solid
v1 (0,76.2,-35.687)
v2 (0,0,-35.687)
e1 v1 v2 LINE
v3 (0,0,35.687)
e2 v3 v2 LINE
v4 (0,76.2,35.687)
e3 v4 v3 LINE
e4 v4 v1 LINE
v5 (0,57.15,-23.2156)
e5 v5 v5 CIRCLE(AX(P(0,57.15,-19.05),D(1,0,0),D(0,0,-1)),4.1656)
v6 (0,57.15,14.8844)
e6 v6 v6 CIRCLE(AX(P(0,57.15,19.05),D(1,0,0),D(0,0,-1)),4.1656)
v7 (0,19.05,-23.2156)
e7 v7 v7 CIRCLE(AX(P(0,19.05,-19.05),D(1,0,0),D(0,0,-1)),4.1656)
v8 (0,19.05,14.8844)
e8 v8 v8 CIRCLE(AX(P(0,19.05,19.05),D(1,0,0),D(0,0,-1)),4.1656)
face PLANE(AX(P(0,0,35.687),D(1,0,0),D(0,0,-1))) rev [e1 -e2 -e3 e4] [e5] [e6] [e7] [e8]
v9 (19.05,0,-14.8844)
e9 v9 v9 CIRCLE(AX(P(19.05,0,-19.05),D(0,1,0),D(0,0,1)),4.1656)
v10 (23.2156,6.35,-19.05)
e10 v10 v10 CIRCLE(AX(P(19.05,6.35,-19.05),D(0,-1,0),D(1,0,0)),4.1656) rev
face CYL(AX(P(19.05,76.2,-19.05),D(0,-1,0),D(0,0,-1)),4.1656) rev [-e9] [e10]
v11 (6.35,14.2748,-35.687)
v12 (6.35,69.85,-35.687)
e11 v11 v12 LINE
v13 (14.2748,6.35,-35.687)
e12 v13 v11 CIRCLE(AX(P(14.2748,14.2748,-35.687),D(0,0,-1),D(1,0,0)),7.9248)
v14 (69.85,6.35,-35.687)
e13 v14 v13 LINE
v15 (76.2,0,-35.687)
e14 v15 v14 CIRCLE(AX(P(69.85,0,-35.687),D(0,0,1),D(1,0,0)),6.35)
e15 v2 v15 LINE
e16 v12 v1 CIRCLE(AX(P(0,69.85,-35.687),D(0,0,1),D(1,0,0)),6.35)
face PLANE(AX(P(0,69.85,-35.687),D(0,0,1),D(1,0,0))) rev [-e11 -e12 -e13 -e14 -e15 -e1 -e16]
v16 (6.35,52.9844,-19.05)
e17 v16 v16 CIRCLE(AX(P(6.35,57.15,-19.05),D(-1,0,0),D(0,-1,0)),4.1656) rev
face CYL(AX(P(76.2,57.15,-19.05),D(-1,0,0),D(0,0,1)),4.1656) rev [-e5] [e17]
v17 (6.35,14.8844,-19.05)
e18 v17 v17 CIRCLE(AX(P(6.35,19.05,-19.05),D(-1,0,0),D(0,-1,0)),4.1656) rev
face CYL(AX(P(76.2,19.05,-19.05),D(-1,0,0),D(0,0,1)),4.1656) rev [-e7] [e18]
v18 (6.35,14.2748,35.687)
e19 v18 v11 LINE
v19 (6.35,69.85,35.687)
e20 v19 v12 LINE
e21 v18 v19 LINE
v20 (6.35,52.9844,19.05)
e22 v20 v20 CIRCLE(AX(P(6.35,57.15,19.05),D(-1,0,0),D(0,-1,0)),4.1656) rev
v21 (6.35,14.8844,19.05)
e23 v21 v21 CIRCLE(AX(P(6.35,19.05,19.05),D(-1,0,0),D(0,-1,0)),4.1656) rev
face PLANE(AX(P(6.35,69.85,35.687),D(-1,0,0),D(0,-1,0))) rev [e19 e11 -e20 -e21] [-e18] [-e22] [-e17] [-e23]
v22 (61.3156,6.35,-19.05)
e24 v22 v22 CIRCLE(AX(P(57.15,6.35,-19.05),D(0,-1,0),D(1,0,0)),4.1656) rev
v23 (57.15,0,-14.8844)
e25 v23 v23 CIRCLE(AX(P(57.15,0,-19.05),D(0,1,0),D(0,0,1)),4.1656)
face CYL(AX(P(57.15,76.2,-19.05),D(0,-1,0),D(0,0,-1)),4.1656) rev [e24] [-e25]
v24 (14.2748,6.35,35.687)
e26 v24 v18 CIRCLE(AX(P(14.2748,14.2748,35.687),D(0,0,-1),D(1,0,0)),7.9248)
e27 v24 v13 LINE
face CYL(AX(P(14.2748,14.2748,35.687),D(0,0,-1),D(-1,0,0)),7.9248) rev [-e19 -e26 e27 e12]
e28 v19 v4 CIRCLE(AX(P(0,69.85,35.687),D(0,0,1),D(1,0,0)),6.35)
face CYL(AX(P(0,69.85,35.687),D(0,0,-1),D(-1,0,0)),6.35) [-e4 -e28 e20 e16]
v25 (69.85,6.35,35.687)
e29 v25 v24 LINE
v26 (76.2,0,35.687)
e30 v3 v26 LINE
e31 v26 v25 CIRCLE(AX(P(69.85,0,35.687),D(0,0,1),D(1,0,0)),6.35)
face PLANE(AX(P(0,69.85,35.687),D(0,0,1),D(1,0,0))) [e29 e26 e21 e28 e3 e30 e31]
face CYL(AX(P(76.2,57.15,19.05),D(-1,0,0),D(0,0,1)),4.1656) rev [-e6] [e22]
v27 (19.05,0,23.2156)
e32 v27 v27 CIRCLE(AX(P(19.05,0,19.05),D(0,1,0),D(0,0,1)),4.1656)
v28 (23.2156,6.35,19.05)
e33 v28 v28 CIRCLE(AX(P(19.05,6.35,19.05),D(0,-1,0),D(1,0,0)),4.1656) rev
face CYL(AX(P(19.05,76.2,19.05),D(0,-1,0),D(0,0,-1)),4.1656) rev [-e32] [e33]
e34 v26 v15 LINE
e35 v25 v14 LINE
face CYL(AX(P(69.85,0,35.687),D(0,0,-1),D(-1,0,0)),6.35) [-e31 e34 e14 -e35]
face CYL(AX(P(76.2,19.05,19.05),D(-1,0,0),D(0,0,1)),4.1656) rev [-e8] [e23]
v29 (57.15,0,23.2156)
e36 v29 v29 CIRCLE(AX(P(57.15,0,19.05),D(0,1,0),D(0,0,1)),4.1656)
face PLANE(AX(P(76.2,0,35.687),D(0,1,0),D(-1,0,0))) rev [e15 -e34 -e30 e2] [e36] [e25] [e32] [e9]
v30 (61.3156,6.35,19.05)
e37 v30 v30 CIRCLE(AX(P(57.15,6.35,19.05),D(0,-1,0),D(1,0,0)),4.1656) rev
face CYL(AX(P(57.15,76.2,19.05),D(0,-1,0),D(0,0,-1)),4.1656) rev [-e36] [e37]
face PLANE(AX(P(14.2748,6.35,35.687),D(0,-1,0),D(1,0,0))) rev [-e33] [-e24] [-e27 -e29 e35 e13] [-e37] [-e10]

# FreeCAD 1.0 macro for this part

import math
import FreeCAD as App
import Part
import Sketcher
from FreeCAD import Vector
Q = App.Units.Quantity

doc = App.newDocument("Part")
body = doc.addObject("PartDesign::Body", "Body")

sketch1 = doc.addObject("Sketcher::SketchObject", "Sketch")
body.addObject(sketch1)
sketch1.AttachmentSupport = (doc.XY_Plane, [""])
sketch1.MapMode = "FlatFace"
sketch1.addGeometry(Part.LineSegment(Vector(0, 76, 0), Vector(0, 0, 0)), False)
sketch1.addGeometry(Part.LineSegment(Vector(0, 0, 0), Vector(76, 0, 0)), False)
sketch1.addGeometry(Part.ArcOfCircle(Part.Circle(Vector(70, 0, 0), Vector(0, 0, 1), 6), math.radians(0), math.radians(90)), False)
sketch1.addGeometry(Part.LineSegment(Vector(70, 6, 0), Vector(14, 6, 0)), False)
sketch1.addGeometry(Part.ArcOfCircle(Part.Circle(Vector(14, 14, 0), Vector(0, 0, 1), 8), math.radians(180), math.radians(270)), False)
sketch1.addGeometry(Part.LineSegment(Vector(6, 14, 0), Vector(6, 70, 0)), False)
sketch1.addGeometry(Part.ArcOfCircle(Part.Circle(Vector(0, 70, 0), Vector(0, 0, 1), 6), math.radians(0), math.radians(90)), False)
sketch1.addConstraint(Sketcher.Constraint("Coincident", 0, 2, 1, 1))
sketch1.addConstraint(Sketcher.Constraint("Coincident", 1, 2, 2, 1))
sketch1.addConstraint(Sketcher.Constraint("Tangent", 2, 2, 3, 1))
sketch1.addConstraint(Sketcher.Constraint("Tangent", 3, 2, 4, 2))
sketch1.addConstraint(Sketcher.Constraint("Tangent", 4, 1, 5, 1))
sketch1.addConstraint(Sketcher.Constraint("Tangent", 5, 2, 6, 1))
sketch1.addConstraint(Sketcher.Constraint("Coincident", 6, 2, 0, 1))
sketch1.addConstraint(Sketcher.Constraint("Vertical", 0))
sketch1.addConstraint(Sketcher.Constraint("Horizontal", 1))
sketch1.addConstraint(Sketcher.Constraint("Horizontal", 3))
sketch1.addConstraint(Sketcher.Constraint("Vertical", 5))
sketch1.addConstraint(Sketcher.Constraint("Coincident", 0, 2, -1, 1))
sketch1.addConstraint(Sketcher.Constraint("Equal", 2, 6))
sketch1.addConstraint(Sketcher.Constraint("PointOnObject", 2, 3, -1))
sketch1.addConstraint(Sketcher.Constraint("PointOnObject", 6, 3, -2))
sketch1.addConstraint(Sketcher.Constraint("Equal", 1, 0))
sketch1.addConstraint(Sketcher.Constraint("DistanceX", 1, 1, 1, 2, Q("3 in")))
sketch1.addConstraint(Sketcher.Constraint("Radius", 2, Q("0.25 in")))
sketch1.addConstraint(Sketcher.Constraint("Radius", 4, Q("0.312 in")))
pad1 = doc.addObject("PartDesign::Pad", "Pad")
body.addObject(pad1)
pad1.Profile = sketch1
pad1.Length = Q("2.81 in")
pad1.Midplane = True

sketch2 = doc.addObject("Sketcher::SketchObject", "Sketch001")
body.addObject(sketch2)
sketch2.AttachmentSupport = (doc.XZ_Plane, [""])
sketch2.MapMode = "FlatFace"
sketch2.addGeometry(Part.Circle(Vector(19.1, 19.1, 0), Vector(0, 0, 1), 4.2), False)
sketch2.addGeometry(Part.Circle(Vector(57.1, 19.1, 0), Vector(0, 0, 1), 4.2), False)
sketch2.addGeometry(Part.Circle(Vector(19.1, -19.1, 0), Vector(0, 0, 1), 4.2), False)
sketch2.addGeometry(Part.Circle(Vector(57.1, -19.1, 0), Vector(0, 0, 1), 4.2), False)
sketch2.addConstraint(Sketcher.Constraint("Equal", 0, 1))
sketch2.addConstraint(Sketcher.Constraint("Equal", 1, 2))
sketch2.addConstraint(Sketcher.Constraint("Equal", 2, 3))
sketch2.addConstraint(Sketcher.Constraint("Symmetric", 0, 3, 2, 3, -1))
sketch2.addConstraint(Sketcher.Constraint("Symmetric", 1, 3, 3, 3, -1))
sketch2.addConstraint(Sketcher.Constraint("Horizontal", 0, 3, 1, 3))
sketch2.addConstraint(Sketcher.Constraint("Diameter", 0, Q("0.328 in")))
sketch2.addConstraint(Sketcher.Constraint("DistanceX", 0, 3, 1, 3, Q("1.5 in")))
sketch2.addConstraint(Sketcher.Constraint("DistanceY", 2, 3, 0, 3, Q("1.5 in")))
sketch2.addConstraint(Sketcher.Constraint("DistanceX", -1, 1, 0, 3, Q("0.75 in")))
pocket1 = doc.addObject("PartDesign::Pocket", "Pocket")
body.addObject(pocket1)
pocket1.Profile = sketch2
pocket1.Type = "ThroughAll"

sketch3 = doc.addObject("Sketcher::SketchObject", "Sketch002")
body.addObject(sketch3)
sketch3.AttachmentSupport = (doc.YZ_Plane, [""])
sketch3.MapMode = "FlatFace"
sketch3.addGeometry(Part.Circle(Vector(19.1, 19.1, 0), Vector(0, 0, 1), 4.2), False)
sketch3.addGeometry(Part.Circle(Vector(57.1, 19.1, 0), Vector(0, 0, 1), 4.2), False)
sketch3.addGeometry(Part.Circle(Vector(19.1, -19.1, 0), Vector(0, 0, 1), 4.2), False)
sketch3.addGeometry(Part.Circle(Vector(57.1, -19.1, 0), Vector(0, 0, 1), 4.2), False)
sketch3.addConstraint(Sketcher.Constraint("Equal", 0, 1))
sketch3.addConstraint(Sketcher.Constraint("Equal", 1, 2))
sketch3.addConstraint(Sketcher.Constraint("Equal", 2, 3))
sketch3.addConstraint(Sketcher.Constraint("Symmetric", 0, 3, 2, 3, -1))
sketch3.addConstraint(Sketcher.Constraint("Symmetric", 1, 3, 3, 3, -1))
sketch3.addConstraint(Sketcher.Constraint("Horizontal", 0, 3, 1, 3))
sketch3.addConstraint(Sketcher.Constraint("Diameter", 0, Q("0.328 in")))
sketch3.addConstraint(Sketcher.Constraint("DistanceX", 0, 3, 1, 3, Q("1.5 in")))
sketch3.addConstraint(Sketcher.Constraint("DistanceY", 2, 3, 0, 3, Q("1.5 in")))
sketch3.addConstraint(Sketcher.Constraint("DistanceX", -1, 1, 0, 3, Q("0.75 in")))
pocket2 = doc.addObject("PartDesign::Pocket", "Pocket001")
body.addObject(pocket2)
pocket2.Profile = sketch3
pocket2.Type = "ThroughAll"
pocket2.Reversed = True

doc.recompute()
